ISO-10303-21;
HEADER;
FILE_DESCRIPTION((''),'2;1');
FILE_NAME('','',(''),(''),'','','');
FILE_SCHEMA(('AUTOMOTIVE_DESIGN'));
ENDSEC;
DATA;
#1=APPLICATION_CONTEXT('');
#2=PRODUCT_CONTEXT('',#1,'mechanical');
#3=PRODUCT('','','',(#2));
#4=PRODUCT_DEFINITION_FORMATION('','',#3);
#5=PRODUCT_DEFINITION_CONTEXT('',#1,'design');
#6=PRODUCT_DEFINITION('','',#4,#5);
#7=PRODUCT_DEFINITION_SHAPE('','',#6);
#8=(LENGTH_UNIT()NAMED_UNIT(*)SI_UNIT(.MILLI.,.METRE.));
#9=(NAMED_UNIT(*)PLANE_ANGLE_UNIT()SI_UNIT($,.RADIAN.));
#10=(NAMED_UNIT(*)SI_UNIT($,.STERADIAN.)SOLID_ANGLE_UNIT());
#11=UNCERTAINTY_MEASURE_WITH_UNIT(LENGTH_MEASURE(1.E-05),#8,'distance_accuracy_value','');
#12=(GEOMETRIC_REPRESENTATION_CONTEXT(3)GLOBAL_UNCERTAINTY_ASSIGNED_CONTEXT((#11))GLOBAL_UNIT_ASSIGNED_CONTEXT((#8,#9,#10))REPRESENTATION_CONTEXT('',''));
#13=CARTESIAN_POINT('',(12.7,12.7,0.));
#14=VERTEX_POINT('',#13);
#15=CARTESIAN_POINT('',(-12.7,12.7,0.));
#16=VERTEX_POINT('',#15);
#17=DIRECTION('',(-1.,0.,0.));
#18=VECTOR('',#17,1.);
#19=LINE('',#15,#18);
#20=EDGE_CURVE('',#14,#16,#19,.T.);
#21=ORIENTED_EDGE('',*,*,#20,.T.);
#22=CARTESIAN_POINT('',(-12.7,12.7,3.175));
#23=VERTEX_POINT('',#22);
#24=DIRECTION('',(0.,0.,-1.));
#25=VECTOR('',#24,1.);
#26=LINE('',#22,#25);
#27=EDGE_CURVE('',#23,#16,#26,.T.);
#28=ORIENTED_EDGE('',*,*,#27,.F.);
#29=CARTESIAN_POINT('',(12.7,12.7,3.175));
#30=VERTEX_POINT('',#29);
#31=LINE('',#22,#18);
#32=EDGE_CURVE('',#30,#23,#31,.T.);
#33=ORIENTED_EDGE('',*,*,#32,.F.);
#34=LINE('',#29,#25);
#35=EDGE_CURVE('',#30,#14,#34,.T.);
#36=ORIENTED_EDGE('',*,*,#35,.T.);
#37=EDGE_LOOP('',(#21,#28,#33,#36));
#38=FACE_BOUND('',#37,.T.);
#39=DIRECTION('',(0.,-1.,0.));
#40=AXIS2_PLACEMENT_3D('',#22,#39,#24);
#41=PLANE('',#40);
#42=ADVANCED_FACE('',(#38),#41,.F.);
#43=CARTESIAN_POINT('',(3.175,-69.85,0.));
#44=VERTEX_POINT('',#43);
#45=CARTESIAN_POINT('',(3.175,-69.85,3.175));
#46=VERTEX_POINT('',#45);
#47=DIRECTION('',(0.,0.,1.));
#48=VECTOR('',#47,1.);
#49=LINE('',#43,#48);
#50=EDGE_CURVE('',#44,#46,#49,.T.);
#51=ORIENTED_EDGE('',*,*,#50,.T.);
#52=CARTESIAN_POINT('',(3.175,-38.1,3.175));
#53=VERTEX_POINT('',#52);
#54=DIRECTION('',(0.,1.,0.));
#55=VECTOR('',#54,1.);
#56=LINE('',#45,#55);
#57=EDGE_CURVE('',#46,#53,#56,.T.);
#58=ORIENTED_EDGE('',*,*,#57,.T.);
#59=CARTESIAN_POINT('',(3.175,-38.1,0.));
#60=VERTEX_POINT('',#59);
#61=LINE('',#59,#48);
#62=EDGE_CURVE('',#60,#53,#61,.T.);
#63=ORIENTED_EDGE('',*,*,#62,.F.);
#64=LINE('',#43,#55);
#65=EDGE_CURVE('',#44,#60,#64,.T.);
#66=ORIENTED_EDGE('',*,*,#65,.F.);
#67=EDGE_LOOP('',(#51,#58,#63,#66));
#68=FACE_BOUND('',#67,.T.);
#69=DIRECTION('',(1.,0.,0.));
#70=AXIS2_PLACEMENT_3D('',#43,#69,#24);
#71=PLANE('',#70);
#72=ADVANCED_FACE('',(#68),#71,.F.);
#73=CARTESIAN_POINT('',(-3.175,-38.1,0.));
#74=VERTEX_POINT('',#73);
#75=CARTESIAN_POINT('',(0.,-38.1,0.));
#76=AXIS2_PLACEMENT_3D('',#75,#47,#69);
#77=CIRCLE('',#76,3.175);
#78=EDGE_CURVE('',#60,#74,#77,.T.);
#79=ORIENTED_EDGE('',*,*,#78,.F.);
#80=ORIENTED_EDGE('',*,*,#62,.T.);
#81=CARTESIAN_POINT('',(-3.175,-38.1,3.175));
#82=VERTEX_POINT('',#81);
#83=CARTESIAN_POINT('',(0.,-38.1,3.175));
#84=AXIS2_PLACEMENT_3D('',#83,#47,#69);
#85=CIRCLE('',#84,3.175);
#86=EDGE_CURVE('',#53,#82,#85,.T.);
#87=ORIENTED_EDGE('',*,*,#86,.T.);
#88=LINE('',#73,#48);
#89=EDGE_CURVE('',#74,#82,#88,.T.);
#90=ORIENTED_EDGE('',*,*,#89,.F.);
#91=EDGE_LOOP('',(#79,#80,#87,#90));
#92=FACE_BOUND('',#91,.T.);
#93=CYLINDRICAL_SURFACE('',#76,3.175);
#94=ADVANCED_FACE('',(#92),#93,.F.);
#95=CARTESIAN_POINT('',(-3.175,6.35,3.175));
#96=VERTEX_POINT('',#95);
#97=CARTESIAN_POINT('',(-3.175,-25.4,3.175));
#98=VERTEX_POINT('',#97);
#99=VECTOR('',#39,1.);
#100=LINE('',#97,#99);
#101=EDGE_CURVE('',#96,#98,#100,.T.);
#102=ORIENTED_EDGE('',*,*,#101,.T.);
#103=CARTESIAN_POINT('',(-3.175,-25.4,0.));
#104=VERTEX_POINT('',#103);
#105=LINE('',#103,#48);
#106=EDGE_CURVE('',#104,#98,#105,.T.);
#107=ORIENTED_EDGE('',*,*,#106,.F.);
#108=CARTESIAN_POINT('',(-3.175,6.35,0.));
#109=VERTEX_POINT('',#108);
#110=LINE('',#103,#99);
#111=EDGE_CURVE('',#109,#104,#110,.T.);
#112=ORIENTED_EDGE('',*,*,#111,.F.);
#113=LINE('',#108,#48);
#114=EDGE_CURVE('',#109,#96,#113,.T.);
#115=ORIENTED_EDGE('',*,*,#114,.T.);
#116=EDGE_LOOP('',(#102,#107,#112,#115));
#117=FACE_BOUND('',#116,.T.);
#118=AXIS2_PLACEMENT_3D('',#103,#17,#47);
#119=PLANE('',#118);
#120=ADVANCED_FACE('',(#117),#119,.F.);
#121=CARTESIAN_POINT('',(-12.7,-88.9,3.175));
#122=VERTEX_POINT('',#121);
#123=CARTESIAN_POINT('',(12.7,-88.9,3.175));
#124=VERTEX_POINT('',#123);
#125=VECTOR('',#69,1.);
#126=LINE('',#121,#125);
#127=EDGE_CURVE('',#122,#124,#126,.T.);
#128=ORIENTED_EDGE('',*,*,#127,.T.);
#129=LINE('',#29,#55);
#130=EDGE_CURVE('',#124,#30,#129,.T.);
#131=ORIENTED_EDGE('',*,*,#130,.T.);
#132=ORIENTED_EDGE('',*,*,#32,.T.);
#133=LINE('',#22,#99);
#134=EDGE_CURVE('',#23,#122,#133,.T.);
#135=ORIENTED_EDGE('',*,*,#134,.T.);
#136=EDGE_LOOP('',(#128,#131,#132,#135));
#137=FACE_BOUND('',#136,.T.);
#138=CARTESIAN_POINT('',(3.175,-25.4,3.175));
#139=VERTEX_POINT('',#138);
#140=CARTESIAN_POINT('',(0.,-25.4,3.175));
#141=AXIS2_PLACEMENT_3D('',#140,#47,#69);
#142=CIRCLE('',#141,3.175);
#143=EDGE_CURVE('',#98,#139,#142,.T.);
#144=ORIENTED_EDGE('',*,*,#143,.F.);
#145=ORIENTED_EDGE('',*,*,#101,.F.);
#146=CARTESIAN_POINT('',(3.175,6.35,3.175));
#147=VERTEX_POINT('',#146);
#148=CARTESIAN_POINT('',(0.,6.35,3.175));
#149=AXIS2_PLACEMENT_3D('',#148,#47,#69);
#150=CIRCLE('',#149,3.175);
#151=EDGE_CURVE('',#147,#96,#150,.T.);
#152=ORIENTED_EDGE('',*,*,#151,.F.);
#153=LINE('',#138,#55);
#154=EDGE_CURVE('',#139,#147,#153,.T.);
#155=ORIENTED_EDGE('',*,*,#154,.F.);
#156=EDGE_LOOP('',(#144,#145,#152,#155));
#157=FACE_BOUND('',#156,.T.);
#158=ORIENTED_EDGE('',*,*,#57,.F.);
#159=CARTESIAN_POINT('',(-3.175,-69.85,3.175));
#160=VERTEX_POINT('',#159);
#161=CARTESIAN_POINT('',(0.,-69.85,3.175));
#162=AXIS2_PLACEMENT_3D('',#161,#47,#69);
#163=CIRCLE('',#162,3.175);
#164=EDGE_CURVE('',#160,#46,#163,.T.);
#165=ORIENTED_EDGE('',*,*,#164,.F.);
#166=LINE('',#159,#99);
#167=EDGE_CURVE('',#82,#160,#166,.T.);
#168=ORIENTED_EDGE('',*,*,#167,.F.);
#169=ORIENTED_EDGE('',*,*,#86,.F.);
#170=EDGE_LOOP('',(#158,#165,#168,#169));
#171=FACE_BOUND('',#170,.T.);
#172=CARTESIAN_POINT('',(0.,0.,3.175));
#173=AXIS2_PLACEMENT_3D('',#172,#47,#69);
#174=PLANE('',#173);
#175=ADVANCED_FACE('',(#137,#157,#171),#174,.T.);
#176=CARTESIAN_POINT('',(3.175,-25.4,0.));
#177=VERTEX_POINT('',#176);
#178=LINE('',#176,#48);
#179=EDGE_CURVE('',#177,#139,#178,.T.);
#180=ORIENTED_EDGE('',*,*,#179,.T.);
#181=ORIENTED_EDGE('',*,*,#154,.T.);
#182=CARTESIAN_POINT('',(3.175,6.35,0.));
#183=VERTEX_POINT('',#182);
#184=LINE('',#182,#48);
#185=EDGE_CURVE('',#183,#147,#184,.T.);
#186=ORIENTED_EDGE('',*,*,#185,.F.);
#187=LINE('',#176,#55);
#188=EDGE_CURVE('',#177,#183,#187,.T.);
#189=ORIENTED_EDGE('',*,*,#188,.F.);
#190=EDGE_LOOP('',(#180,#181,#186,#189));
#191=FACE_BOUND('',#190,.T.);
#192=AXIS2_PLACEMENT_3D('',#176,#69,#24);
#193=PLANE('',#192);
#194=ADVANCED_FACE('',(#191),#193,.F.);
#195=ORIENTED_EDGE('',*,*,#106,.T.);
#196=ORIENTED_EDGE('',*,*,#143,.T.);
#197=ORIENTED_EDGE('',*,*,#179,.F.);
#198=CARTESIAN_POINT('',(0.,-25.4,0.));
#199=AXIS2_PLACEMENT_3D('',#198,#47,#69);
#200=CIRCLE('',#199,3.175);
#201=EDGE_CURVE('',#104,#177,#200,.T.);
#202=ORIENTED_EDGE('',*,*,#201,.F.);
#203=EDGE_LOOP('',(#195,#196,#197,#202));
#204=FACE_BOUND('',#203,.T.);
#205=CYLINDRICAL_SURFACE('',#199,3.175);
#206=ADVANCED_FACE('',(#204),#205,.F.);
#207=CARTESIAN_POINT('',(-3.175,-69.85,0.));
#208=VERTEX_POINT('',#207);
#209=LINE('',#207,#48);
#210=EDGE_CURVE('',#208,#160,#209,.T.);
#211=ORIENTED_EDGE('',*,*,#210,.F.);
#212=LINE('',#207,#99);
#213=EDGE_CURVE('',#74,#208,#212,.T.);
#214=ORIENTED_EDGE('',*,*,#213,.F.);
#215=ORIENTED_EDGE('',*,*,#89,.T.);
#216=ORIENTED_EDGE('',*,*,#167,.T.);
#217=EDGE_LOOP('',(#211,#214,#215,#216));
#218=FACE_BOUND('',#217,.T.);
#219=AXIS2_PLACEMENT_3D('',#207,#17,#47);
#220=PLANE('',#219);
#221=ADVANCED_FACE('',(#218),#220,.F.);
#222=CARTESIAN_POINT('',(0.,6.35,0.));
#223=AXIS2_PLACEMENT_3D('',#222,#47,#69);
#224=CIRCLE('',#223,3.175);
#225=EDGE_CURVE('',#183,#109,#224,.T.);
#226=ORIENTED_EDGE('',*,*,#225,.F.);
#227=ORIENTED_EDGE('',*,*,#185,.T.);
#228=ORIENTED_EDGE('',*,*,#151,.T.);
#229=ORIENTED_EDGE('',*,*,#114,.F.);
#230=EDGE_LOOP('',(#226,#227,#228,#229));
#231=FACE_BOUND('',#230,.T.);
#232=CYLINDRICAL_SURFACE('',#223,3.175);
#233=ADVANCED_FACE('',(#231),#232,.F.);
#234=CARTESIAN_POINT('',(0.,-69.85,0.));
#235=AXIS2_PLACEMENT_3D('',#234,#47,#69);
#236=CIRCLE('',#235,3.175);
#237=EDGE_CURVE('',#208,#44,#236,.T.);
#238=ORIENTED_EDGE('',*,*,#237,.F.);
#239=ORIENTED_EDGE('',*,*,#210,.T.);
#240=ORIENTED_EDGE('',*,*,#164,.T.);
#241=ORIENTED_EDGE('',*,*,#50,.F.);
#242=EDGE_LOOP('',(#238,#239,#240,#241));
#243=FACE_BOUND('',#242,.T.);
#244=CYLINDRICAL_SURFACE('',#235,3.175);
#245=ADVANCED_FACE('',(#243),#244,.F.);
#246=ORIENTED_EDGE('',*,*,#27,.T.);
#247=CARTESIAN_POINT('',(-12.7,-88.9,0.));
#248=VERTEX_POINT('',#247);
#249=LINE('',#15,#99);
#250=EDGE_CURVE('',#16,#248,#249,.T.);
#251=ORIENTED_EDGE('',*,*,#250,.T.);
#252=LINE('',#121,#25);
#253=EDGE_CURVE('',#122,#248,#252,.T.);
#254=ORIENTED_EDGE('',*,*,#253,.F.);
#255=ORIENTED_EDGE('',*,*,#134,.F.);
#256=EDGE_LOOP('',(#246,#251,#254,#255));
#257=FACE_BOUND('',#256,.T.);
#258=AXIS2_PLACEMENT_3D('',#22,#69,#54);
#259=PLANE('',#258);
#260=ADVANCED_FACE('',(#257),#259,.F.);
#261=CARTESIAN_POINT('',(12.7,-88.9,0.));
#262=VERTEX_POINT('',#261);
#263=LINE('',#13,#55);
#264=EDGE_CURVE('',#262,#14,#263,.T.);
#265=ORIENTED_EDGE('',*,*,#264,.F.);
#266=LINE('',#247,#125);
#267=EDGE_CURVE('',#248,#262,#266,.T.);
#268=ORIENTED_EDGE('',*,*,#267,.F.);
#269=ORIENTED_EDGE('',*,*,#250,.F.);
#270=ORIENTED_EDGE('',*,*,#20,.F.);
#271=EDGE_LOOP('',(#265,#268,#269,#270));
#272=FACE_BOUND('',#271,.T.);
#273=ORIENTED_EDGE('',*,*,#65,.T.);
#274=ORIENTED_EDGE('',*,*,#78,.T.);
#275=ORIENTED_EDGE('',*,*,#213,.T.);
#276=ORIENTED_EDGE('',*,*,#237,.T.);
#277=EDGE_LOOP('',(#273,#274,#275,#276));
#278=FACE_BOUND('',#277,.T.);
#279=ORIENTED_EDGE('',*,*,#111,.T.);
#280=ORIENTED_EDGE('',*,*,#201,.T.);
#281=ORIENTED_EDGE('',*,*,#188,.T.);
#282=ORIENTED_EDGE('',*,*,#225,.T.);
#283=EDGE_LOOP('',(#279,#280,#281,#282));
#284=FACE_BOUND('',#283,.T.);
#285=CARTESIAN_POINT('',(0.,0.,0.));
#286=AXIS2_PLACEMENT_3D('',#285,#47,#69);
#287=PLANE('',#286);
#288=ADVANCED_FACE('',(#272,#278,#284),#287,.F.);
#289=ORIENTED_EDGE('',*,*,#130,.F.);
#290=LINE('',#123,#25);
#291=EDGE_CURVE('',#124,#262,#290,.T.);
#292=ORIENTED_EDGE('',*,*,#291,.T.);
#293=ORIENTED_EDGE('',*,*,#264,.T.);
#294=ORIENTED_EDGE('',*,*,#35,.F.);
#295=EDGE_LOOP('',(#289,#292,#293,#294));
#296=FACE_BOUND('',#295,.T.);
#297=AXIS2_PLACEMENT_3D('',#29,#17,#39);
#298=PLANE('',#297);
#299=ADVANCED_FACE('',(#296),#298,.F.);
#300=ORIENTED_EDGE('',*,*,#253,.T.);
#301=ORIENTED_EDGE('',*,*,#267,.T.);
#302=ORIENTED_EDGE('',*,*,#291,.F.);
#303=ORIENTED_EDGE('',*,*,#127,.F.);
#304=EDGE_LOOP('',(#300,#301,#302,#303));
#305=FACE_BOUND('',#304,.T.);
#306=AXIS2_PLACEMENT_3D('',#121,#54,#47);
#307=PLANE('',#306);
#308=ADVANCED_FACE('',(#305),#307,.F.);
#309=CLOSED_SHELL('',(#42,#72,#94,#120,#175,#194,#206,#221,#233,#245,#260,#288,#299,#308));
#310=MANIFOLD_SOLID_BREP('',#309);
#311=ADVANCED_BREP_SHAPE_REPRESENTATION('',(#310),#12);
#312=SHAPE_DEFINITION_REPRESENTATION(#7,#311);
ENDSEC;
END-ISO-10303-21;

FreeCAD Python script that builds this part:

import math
import FreeCAD as App
import Part
import Sketcher
Q = App.Units.Quantity


def add_polygon(sketch, points):
    """Adds a closed chain of lines whose ends are joined by coincident constraints."""
    first, n = sketch.GeometryCount, len(points)
    for a, b in zip(points, points[1:] + points[:1]):
        sketch.addGeometry(Part.LineSegment(App.Vector(*a, 0), App.Vector(*b, 0)), False)
    for i in range(n):
        sketch.addConstraint(Sketcher.Constraint("Coincident", first + i, 2, first + (i + 1) % n, 1))

doc = App.newDocument("Part")
body = doc.addObject("PartDesign::Body", "Body")

# Sketch on XY plane
sketch1 = body.newObject("Sketcher::SketchObject", "Sketch")
sketch1.AttachmentSupport = (doc.getObject("XY_Plane"), [""])
sketch1.MapMode = "FlatFace"
add_polygon(sketch1, [(-12.7, 12.7), (-12.7, -88.9), (12.7, -88.9), (12.7, 12.7)])  # lines 0-3
sketch1.addGeometry(Part.Circle(App.Vector(0, -69.85, 0), App.Vector(0, 0, 1), 2.38125), False)  # 4
sketch1.addGeometry(Part.Circle(App.Vector(0, 6.35, 0), App.Vector(0, 0, 1), 2.38125), False)  # 5
sketch1.addConstraint([
    Sketcher.Constraint("Vertical", 0),
    Sketcher.Constraint("Horizontal", 1),
    Sketcher.Constraint("Vertical", 2),
    Sketcher.Constraint("Horizontal", 3),
    Sketcher.Constraint("Equal", 4, 5),
    Sketcher.Constraint("PointOnObject", 4, 3, -2),
    Sketcher.Constraint("PointOnObject", 5, 3, -2),
    Sketcher.Constraint("DistanceX", 1, 1, 1, 2, Q("1 in")),
    Sketcher.Constraint("DistanceY", 0, 2, 0, 1, Q("4 in")),
    Sketcher.Constraint("Diameter", 4, Q("0.1875 in")),
    Sketcher.Constraint("DistanceY", 4, 3, 5, 3, Q("3 in")),
    Sketcher.Constraint("DistanceX", 0, 2, -1, 1, Q("0.5 in")),
    Sketcher.Constraint("DistanceY", 0, 2, -1, 1, Q("3.5 in")),
    Sketcher.Constraint("DistanceY", 4, 3, -1, 1, Q("2.75 in")),
])
pad1 = body.newObject("PartDesign::Pad", "Pad")
pad1.Profile = sketch1
pad1.Length = Q("0.125 in")

# Sketch on XY plane
sketch2 = body.newObject("Sketcher::SketchObject", "Sketch001")
sketch2.AttachmentSupport = (doc.getObject("XY_Plane"), [""])
sketch2.MapMode = "FlatFace"
sketch2.AttachmentOffset = App.Placement(App.Vector(0, 0, 0.125 * 25.4), App.Rotation())
sketch2.addGeometry([
    Part.LineSegment(App.Vector(-3.175, 6.35, 0), App.Vector(-3.175, -25.4, 0)),  # 0
    Part.ArcOfCircle(Part.Circle(App.Vector(0, -25.4, 0), App.Vector(0, 0, 1), 3.175), math.radians(180), math.radians(360)),  # 1
    Part.LineSegment(App.Vector(3.175, -25.4, 0), App.Vector(3.175, 6.35, 0)),  # 2
    Part.ArcOfCircle(Part.Circle(App.Vector(0, 6.35, 0), App.Vector(0, 0, 1), 3.175), math.radians(0), math.radians(180)),  # 3
    Part.LineSegment(App.Vector(-3.175, -38.1, 0), App.Vector(-3.175, -69.85, 0)),  # 4
    Part.ArcOfCircle(Part.Circle(App.Vector(0, -69.85, 0), App.Vector(0, 0, 1), 3.175), math.radians(180), math.radians(360)),  # 5
    Part.LineSegment(App.Vector(3.175, -69.85, 0), App.Vector(3.175, -38.1, 0)),  # 6
    Part.ArcOfCircle(Part.Circle(App.Vector(0, -38.1, 0), App.Vector(0, 0, 1), 3.175), math.radians(0), math.radians(180)),  # 7
], False)
sketch2.addConstraint([
    Sketcher.Constraint("Tangent", 0, 2, 1, 1),
    Sketcher.Constraint("Tangent", 1, 2, 2, 1),
    Sketcher.Constraint("Tangent", 2, 2, 3, 1),
    Sketcher.Constraint("Tangent", 3, 2, 0, 1),
    Sketcher.Constraint("Tangent", 4, 2, 5, 1),
    Sketcher.Constraint("Tangent", 5, 2, 6, 1),
    Sketcher.Constraint("Tangent", 6, 2, 7, 1),
    Sketcher.Constraint("Tangent", 7, 2, 4, 1),
    Sketcher.Constraint("Vertical", 0),
    Sketcher.Constraint("Vertical", 2),
    Sketcher.Constraint("Vertical", 4),
    Sketcher.Constraint("Vertical", 6),
    Sketcher.Constraint("Equal", 3, 5),
    Sketcher.Constraint("PointOnObject", 1, 3, -2),
    Sketcher.Constraint("PointOnObject", 5, 3, -2),
    Sketcher.Constraint("Equal", 2, 4),
    Sketcher.Constraint("DistanceY", 1, 3, -1, 1, Q("1 in")),
    Sketcher.Constraint("Radius", 1, Q("0.125 in")),
    Sketcher.Constraint("DistanceY", 5, 3, 3, 3, Q("3 in")),
    Sketcher.Constraint("DistanceY", 0, 2, 0, 1, Q("1.25 in")),
])
pocket1 = body.newObject("PartDesign::Pocket", "Pocket")
pocket1.Profile = sketch2
pocket1.Type = "ThroughAll"

doc.recompute()
